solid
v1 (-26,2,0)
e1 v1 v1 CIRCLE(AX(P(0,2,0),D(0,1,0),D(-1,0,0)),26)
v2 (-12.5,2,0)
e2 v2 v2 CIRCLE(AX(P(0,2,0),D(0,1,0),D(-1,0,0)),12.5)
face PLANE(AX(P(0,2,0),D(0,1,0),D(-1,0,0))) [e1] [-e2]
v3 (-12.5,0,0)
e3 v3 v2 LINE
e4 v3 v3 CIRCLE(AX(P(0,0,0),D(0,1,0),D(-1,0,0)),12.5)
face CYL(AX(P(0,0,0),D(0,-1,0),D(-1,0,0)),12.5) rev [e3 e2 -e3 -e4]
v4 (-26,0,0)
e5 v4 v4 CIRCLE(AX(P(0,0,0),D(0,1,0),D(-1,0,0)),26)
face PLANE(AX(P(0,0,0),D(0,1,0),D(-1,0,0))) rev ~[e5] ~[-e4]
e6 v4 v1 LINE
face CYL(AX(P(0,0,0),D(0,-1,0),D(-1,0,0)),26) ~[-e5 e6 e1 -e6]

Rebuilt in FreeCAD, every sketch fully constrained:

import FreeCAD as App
import Part
import Sketcher
from FreeCAD import Vector
Q = App.Units.Quantity

doc = App.newDocument("Part")
body = doc.addObject("PartDesign::Body", "Body")

# Sketch on XZ plane
sketch1 = body.newObject("Sketcher::SketchObject", "Sketch")
sketch1.AttachmentSupport = (doc.getObject("XZ_Plane"), [""])
sketch1.MapMode = "FlatFace"
sketch1.addGeometry(Part.Circle(Vector(0, 0, 0), Vector(0, 0, 1), 26), False)
sketch1.addGeometry(Part.Circle(Vector(0, 0, 0), Vector(0, 0, 1), 12.5), False)
sketch1.addConstraint(Sketcher.Constraint("Coincident", 0, 3, -1, 1))
sketch1.addConstraint(Sketcher.Constraint("Coincident", 1, 3, -1, 1))
sketch1.addConstraint(Sketcher.Constraint("Diameter", 0, Q("52 mm")))
sketch1.addConstraint(Sketcher.Constraint("Diameter", 1, Q("25 mm")))
pad1 = body.newObject("PartDesign::Pad", "Pad")
pad1.Profile = sketch1
pad1.Length = 2
pad1.Reversed = True

doc.recompute()
